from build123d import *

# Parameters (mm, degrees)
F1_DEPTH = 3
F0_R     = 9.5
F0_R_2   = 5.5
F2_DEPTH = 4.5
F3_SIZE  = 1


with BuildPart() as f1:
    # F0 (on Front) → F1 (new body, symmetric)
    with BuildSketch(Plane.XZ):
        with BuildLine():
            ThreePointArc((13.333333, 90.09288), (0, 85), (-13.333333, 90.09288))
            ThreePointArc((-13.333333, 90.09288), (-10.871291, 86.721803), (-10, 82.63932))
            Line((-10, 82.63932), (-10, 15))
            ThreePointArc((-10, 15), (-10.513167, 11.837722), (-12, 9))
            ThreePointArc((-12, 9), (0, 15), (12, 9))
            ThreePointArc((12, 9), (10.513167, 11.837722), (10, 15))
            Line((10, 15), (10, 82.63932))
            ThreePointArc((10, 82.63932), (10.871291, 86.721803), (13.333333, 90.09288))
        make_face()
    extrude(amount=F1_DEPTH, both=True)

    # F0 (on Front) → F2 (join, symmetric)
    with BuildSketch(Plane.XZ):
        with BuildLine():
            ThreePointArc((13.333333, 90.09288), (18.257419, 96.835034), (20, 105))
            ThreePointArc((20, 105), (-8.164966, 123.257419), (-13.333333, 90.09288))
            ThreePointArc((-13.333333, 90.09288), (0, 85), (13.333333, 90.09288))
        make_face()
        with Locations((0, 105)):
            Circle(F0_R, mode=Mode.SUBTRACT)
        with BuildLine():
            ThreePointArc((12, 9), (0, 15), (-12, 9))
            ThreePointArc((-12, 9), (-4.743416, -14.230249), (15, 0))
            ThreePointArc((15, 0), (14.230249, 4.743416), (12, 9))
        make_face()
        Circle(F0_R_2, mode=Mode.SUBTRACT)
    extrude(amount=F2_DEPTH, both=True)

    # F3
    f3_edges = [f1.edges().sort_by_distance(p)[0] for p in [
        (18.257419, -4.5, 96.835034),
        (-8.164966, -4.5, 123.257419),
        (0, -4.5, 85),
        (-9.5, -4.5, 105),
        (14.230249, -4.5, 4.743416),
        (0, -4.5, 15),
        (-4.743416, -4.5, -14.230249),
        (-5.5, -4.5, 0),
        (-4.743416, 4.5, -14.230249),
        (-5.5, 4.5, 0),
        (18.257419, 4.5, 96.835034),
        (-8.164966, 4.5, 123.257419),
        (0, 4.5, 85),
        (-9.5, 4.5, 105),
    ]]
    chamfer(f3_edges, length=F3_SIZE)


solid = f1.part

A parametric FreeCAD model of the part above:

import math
import FreeCAD as App
import Part
import Sketcher
Q = App.Units.Quantity


def edges_at(feature, points):
    """Names of the edges that pass closest to the given points."""
    edges = feature.Shape.Edges
    near = lambda p: min(range(len(edges)), key=lambda i: edges[i].distToShape(Part.Vertex(*p))[0])
    return sorted({f"Edge{near(p) + 1}" for p in points})

doc = App.newDocument("Part")
body = doc.addObject("PartDesign::Body", "Body")

sketch1 = doc.addObject("Sketcher::SketchObject", "Sketch")
body.addObject(sketch1)
sketch1.AttachmentSupport = (doc.XZ_Plane, [""])
sketch1.MapMode = "FlatFace"
sketch1.addGeometry(Part.ArcOfCircle(Part.Circle(App.Vector(0, 105, 0), App.Vector(0, 0, 1), 20), math.radians(-132), math.radians(-48)), False)
sketch1.addGeometry(Part.ArcOfCircle(Part.Circle(App.Vector(-20, 83, 0), App.Vector(0, 0, 1), 10), math.radians(0), math.radians(48)), False)
sketch1.addGeometry(Part.LineSegment(App.Vector(-10, 83, 0), App.Vector(-10, 15, 0)), False)
sketch1.addGeometry(Part.ArcOfCircle(Part.Circle(App.Vector(-20, 15, 0), App.Vector(0, 0, 1), 10), math.radians(-37), math.radians(0)), False)
sketch1.addGeometry(Part.ArcOfCircle(Part.Circle(App.Vector(0, 0, 0), App.Vector(0, 0, 1), 15), math.radians(37), math.radians(143)), False)
sketch1.addGeometry(Part.ArcOfCircle(Part.Circle(App.Vector(20, 15, 0), App.Vector(0, 0, 1), 10), math.radians(180), math.radians(217)), False)
sketch1.addGeometry(Part.LineSegment(App.Vector(10, 15, 0), App.Vector(10, 83, 0)), False)
sketch1.addGeometry(Part.ArcOfCircle(Part.Circle(App.Vector(20, 83, 0), App.Vector(0, 0, 1), 10), math.radians(132), math.radians(180)), False)
sketch1.addConstraint(Sketcher.Constraint("Tangent", 0, 1, 1, 2))
sketch1.addConstraint(Sketcher.Constraint("Tangent", 1, 1, 2, 1))
sketch1.addConstraint(Sketcher.Constraint("Tangent", 2, 2, 3, 2))
sketch1.addConstraint(Sketcher.Constraint("Tangent", 3, 1, 4, 2))
sketch1.addConstraint(Sketcher.Constraint("Tangent", 4, 1, 5, 2))
sketch1.addConstraint(Sketcher.Constraint("Tangent", 5, 1, 6, 1))
sketch1.addConstraint(Sketcher.Constraint("Tangent", 6, 2, 7, 2))
sketch1.addConstraint(Sketcher.Constraint("Tangent", 7, 1, 0, 2))
sketch1.addConstraint(Sketcher.Constraint("Vertical", 2))
sketch1.addConstraint(Sketcher.Constraint("Vertical", 6))
sketch1.addConstraint(Sketcher.Constraint("Coincident", 4, 3, -1, 1))
sketch1.addConstraint(Sketcher.Constraint("Equal", 3, 5))
sketch1.addConstraint(Sketcher.Constraint("Equal", 1, 7))
sketch1.addConstraint(Sketcher.Constraint("Symmetric", 1, 3, 7, 3, -2))
sketch1.addConstraint(Sketcher.Constraint("Radius", 0, Q("20 mm")))
sketch1.addConstraint(Sketcher.Constraint("Radius", 4, Q("15 mm")))
sketch1.addConstraint(Sketcher.Constraint("DistanceY", -1, 1, 0, 3, Q("105 mm")))
sketch1.addConstraint(Sketcher.Constraint("DistanceY", -1, 1, 3, 3, Q("14.999999 mm")))
sketch1.addConstraint(Sketcher.Constraint("DistanceX", 1, 1, -1, 1, Q("10 mm")))
sketch1.addConstraint(Sketcher.Constraint("DistanceX", 1, 3, 5, 3, Q("40.000002 mm")))
pad1 = doc.addObject("PartDesign::Pad", "Pad")
body.addObject(pad1)
pad1.Profile = sketch1
pad1.Length = 6
pad1.Midplane = True

sketch2 = doc.addObject("Sketcher::SketchObject", "Sketch001")
body.addObject(sketch2)
sketch2.AttachmentSupport = (doc.XZ_Plane, [""])
sketch2.MapMode = "FlatFace"
sketch2.addGeometry(Part.ArcOfCircle(Part.Circle(App.Vector(0, 105, 0), App.Vector(0, 0, 1), 20), math.radians(-48), math.radians(0)), False)
sketch2.addGeometry(Part.ArcOfCircle(Part.Circle(App.Vector(0, 105, 0), App.Vector(0, 0, 1), 20), math.radians(0), math.radians(228)), False)
sketch2.addGeometry(Part.ArcOfCircle(Part.Circle(App.Vector(0, 105, 0), App.Vector(0, 0, 1), 20), math.radians(-132), math.radians(-48)), False)
sketch2.addGeometry(Part.Circle(App.Vector(0, 105, 0), App.Vector(0, 0, 1), 10), False)
sketch2.addGeometry(Part.ArcOfCircle(Part.Circle(App.Vector(0, 0, 0), App.Vector(0, 0, 1), 15), math.radians(37), math.radians(143)), False)
sketch2.addGeometry(Part.ArcOfCircle(Part.Circle(App.Vector(0, 0, 0), App.Vector(0, 0, 1), 15), math.radians(143), math.radians(360)), False)
sketch2.addGeometry(Part.ArcOfCircle(Part.Circle(App.Vector(0, 0, 0), App.Vector(0, 0, 1), 15), math.radians(0), math.radians(37)), False)
sketch2.addGeometry(Part.Circle(App.Vector(0, 0, 0), App.Vector(0, 0, 1), 6), False)
sketch2.addConstraint(Sketcher.Constraint("Tangent", 0, 2, 1, 1))
sketch2.addConstraint(Sketcher.Constraint("Tangent", 1, 2, 2, 1))
sketch2.addConstraint(Sketcher.Constraint("Tangent", 2, 2, 0, 1))
sketch2.addConstraint(Sketcher.Constraint("Tangent", 4, 2, 5, 1))
sketch2.addConstraint(Sketcher.Constraint("Tangent", 5, 2, 6, 1))
sketch2.addConstraint(Sketcher.Constraint("Tangent", 6, 2, 4, 1))
sketch2.addConstraint(Sketcher.Constraint("Coincident", 4, 3, -1, 1))
sketch2.addConstraint(Sketcher.Constraint("Coincident", 7, 3, -1, 1))
sketch2.addConstraint(Sketcher.Constraint("Coincident", 3, 3, 0, 3))
sketch2.addConstraint(Sketcher.Constraint("Symmetric", 1, 2, 2, 2, -2))
sketch2.addConstraint(Sketcher.Constraint("PointOnObject", 5, 2, -1))
sketch2.addConstraint(Sketcher.Constraint("Horizontal", 3, 3, 0, 2))
sketch2.addConstraint(Sketcher.Constraint("Horizontal", 4, 2, 6, 2))
sketch2.addConstraint(Sketcher.Constraint("Diameter", 3, Q("19 mm")))
sketch2.addConstraint(Sketcher.Constraint("Diameter", 7, Q("11 mm")))
sketch2.addConstraint(Sketcher.Constraint("Radius", 1, Q("20 mm")))
sketch2.addConstraint(Sketcher.Constraint("Radius", 4, Q("15 mm")))
sketch2.addConstraint(Sketcher.Constraint("DistanceY", -1, 1, 1, 3, Q("105 mm")))
sketch2.addConstraint(Sketcher.Constraint("DistanceX", 4, 2, -1, 1, Q("12 mm")))
sketch2.addConstraint(Sketcher.Constraint("DistanceY", -1, 1, 1, 2, Q("90.09288 mm")))
pad2 = doc.addObject("PartDesign::Pad", "Pad001")
body.addObject(pad2)
pad2.Profile = sketch2
pad2.Length = 9
pad2.Midplane = True
doc.recompute()

chamfer = doc.addObject("PartDesign::Chamfer", "Chamfer")
body.addObject(chamfer)
chamfer.Base = (pad2, edges_at(pad2, [
    (18.257, -4.5, 96.835),
    (-8.165, -4.5, 123.257),
    (0, -4.5, 85),
    (-9.5, -4.5, 105),
    (14.23, -4.5, 4.743),
    (0, -4.5, 15),
    (-4.743, -4.5, -14.23),
    (-5.5, -4.5, 0),
    (-4.743, 4.5, -14.23),
    (-5.5, 4.5, 0),
    (18.257, 4.5, 96.835),
    (-8.165, 4.5, 123.257),
    (0, 4.5, 85),
    (-9.5, 4.5, 105),
]))
chamfer.Size = 1

doc.recompute()
